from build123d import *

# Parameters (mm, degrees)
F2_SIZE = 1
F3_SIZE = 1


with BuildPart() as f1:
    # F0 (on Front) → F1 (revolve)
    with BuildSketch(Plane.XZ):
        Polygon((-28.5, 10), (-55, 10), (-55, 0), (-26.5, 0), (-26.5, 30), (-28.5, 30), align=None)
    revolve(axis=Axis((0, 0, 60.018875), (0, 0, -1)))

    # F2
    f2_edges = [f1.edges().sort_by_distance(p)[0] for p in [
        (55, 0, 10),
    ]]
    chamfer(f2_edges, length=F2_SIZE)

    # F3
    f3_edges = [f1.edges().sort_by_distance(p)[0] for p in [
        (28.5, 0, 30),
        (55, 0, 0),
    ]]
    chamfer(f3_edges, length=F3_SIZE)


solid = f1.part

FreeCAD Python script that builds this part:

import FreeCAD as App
import Part
import Sketcher
from FreeCAD import Vector
Q = App.Units.Quantity


def edges_at(feature, points):
    """Names of the edges that pass closest to the given points."""
    edges = feature.Shape.Edges
    near = lambda p: min(range(len(edges)), key=lambda i: edges[i].distToShape(Part.Vertex(*p))[0])
    return sorted({f"Edge{near(p) + 1}" for p in points})


def add_polygon(sketch, points):
    """Adds a closed chain of lines whose ends are joined by coincident constraints."""
    first, n = sketch.GeometryCount, len(points)
    for a, b in zip(points, points[1:] + points[:1]):
        sketch.addGeometry(Part.LineSegment(App.Vector(*a, 0), App.Vector(*b, 0)), False)
    for i in range(n):
        sketch.addConstraint(Sketcher.Constraint("Coincident", first + i, 2, first + (i + 1) % n, 1))

doc = App.newDocument("Part")
body = doc.addObject("PartDesign::Body", "Body")

sketch1 = doc.addObject("Sketcher::SketchObject", "Sketch")
body.addObject(sketch1)
sketch1.AttachmentSupport = (doc.XZ_Plane, [""])
sketch1.MapMode = "FlatFace"
add_polygon(sketch1, [(-28.5, 10), (-55, 10), (-55, 0), (-26.5, 0), (-26.5, 30), (-28.5, 30)])
sketch1.addConstraint([
    Sketcher.Constraint("Horizontal", 0),
    Sketcher.Constraint("Vertical", 1),
    Sketcher.Constraint("Horizontal", 2),
    Sketcher.Constraint("Vertical", 3),
    Sketcher.Constraint("Horizontal", 4),
    Sketcher.Constraint("Vertical", 5),
    Sketcher.Constraint("PointOnObject", 1, 2, -1),
    Sketcher.Constraint("DistanceX", 4, 2, 4, 1, Q("2 mm")),
    Sketcher.Constraint("DistanceY", 1, 2, 1, 1, Q("10 mm")),
    Sketcher.Constraint("DistanceY", 3, 1, 3, 2, Q("30 mm")),
    Sketcher.Constraint("DistanceX", 0, 2, 0, 1, Q("26.5 mm")),
    Sketcher.Constraint("DistanceX", 0, 2, -1, 1, Q("55 mm")),
])
revolution = doc.addObject("PartDesign::Revolution", "Revolution")
body.addObject(revolution)
revolution.Profile = sketch1
revolution.ReferenceAxis = (sketch1, ["V_Axis"])
revolution.Angle = 360
doc.recompute()

chamfer = doc.addObject("PartDesign::Chamfer", "Chamfer")
body.addObject(chamfer)
chamfer.Base = (revolution, edges_at(revolution, [(55, 0, 10)]))
chamfer.Size = 1
doc.recompute()

chamfer2 = doc.addObject("PartDesign::Chamfer", "Chamfer001")
body.addObject(chamfer2)
chamfer2.Base = (chamfer, edges_at(chamfer, [(28.5, 0, 30), (55, 0, 0)]))
chamfer2.Size = 1

doc.recompute()
